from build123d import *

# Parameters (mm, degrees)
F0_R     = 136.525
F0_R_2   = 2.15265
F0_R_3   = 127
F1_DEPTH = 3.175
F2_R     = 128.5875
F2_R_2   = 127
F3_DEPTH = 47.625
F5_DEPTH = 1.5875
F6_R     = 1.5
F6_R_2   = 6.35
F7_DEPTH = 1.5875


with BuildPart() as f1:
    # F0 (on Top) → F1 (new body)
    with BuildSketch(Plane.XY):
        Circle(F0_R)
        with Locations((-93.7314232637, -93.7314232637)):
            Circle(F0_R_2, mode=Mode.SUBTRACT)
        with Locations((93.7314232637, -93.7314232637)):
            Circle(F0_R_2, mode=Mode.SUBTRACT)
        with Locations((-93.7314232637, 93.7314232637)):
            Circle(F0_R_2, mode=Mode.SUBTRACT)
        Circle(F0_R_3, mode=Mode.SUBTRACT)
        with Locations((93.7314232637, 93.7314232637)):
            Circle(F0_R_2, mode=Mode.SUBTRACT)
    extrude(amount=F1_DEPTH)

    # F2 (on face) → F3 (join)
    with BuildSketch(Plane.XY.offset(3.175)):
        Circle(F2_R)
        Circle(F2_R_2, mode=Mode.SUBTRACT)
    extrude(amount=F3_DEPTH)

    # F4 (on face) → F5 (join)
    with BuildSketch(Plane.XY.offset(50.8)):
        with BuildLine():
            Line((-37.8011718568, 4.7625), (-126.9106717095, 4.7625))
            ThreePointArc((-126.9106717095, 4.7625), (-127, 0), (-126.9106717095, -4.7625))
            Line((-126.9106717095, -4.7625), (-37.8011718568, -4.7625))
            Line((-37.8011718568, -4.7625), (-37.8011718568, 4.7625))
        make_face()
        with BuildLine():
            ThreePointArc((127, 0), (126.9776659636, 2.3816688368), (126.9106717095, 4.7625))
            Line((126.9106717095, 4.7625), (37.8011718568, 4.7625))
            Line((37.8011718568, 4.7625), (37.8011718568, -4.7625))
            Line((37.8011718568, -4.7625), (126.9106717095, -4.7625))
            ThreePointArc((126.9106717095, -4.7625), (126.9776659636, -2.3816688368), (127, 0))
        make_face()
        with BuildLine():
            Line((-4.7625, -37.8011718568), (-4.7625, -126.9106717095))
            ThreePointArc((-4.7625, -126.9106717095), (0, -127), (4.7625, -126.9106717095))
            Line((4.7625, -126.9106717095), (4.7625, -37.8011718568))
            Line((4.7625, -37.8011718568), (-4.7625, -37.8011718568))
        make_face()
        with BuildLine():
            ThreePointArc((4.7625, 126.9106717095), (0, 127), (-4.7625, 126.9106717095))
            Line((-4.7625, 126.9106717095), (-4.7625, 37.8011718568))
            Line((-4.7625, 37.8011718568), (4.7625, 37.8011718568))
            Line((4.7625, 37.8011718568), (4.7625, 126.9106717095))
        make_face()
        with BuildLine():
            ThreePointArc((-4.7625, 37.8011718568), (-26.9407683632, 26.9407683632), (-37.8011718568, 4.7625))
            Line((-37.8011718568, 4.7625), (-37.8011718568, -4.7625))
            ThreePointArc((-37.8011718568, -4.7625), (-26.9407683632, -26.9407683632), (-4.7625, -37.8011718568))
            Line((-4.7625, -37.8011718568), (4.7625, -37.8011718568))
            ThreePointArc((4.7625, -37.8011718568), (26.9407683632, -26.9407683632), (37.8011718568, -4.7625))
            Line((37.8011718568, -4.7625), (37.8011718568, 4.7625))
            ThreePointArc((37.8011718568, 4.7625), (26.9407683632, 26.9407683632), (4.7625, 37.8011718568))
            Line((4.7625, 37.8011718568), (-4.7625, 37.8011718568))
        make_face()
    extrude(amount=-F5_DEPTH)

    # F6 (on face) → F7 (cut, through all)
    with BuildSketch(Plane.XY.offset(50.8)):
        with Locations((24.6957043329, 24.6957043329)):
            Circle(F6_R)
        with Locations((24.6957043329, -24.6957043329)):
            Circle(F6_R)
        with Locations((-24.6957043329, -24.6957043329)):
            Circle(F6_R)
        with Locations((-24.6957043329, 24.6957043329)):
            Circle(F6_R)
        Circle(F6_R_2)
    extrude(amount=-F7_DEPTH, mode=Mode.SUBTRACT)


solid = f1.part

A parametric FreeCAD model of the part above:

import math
import FreeCAD as App
import Part
import Sketcher
Q = App.Units.Quantity

doc = App.newDocument("Part")
body = doc.addObject("PartDesign::Body", "Body")

# Sketch on XY plane
sketch1 = body.newObject("Sketcher::SketchObject", "Sketch")
sketch1.AttachmentSupport = (doc.getObject("XY_Plane"), [""])
sketch1.MapMode = "FlatFace"
sketch1.addGeometry(Part.Circle(App.Vector(0, 0, 0), App.Vector(0, 0, 1), 136.525), False)
sketch1.addGeometry(Part.Circle(App.Vector(-93.731423, -93.731423, 0), App.Vector(0, 0, 1), 2.15265), False)
sketch1.addGeometry(Part.Circle(App.Vector(93.731423, -93.731423, 0), App.Vector(0, 0, 1), 2.15265), False)
sketch1.addGeometry(Part.Circle(App.Vector(-93.731423, 93.731423, 0), App.Vector(0, 0, 1), 2.15265), False)
sketch1.addGeometry(Part.Circle(App.Vector(0, 0, 0), App.Vector(0, 0, 1), 127), False)
sketch1.addGeometry(Part.Circle(App.Vector(93.731423, 93.731423, 0), App.Vector(0, 0, 1), 2.15265), False)
sketch1.addConstraint(Sketcher.Constraint("Coincident", 0, 3, -1, 1))
sketch1.addConstraint(Sketcher.Constraint("Coincident", 4, 3, -1, 1))
sketch1.addConstraint(Sketcher.Constraint("Equal", 1, 2))
sketch1.addConstraint(Sketcher.Constraint("Equal", 2, 3))
sketch1.addConstraint(Sketcher.Constraint("Equal", 3, 5))
sketch1.addConstraint(Sketcher.Constraint("Symmetric", 2, 3, 3, 3, -1, 1))
sketch1.addConstraint(Sketcher.Constraint("Symmetric", 1, 3, 5, 3, -1, 1))
sketch1.addConstraint(Sketcher.Constraint("Symmetric", 1, 3, 2, 3, -2))
sketch1.addConstraint(Sketcher.Constraint("Diameter", 4, Q("10 in")))
sketch1.addConstraint(Sketcher.Constraint("Diameter", 0, Q("10.75 in")))
sketch1.addConstraint(Sketcher.Constraint("Diameter", 1, Q("0.1695 in")))
sketch1.addConstraint(Sketcher.Constraint("DistanceX", 1, 3, -1, 1, Q("93.731423 mm")))
sketch1.addConstraint(Sketcher.Constraint("DistanceY", 1, 3, -1, 1, Q("93.731423 mm")))
pad1 = body.newObject("PartDesign::Pad", "Pad")
pad1.Profile = sketch1
pad1.Length = Q("0.125 in")

# Sketch on XY plane
sketch2 = body.newObject("Sketcher::SketchObject", "Sketch001")
sketch2.AttachmentSupport = (doc.getObject("XY_Plane"), [""])
sketch2.MapMode = "FlatFace"
sketch2.AttachmentOffset = App.Placement(App.Vector(0, 0, 0.125 * 25.4), App.Rotation())
sketch2.addGeometry(Part.Circle(App.Vector(0, 0, 0), App.Vector(0, 0, 1), 128.5875), False)
sketch2.addGeometry(Part.Circle(App.Vector(0, 0, 0), App.Vector(0, 0, 1), 127), False)
sketch2.addConstraint(Sketcher.Constraint("Coincident", 0, 3, -1, 1))
sketch2.addConstraint(Sketcher.Constraint("Coincident", 1, 3, -1, 1))
sketch2.addConstraint(Sketcher.Constraint("Diameter", 1, Q("10 in")))
sketch2.addConstraint(Sketcher.Constraint("Diameter", 0, Q("10.125 in")))
pad2 = body.newObject("PartDesign::Pad", "Pad001")
pad2.Profile = sketch2
pad2.Length = Q("1.875 in")

# Sketch on XY plane
sketch3 = body.newObject("Sketcher::SketchObject", "Sketch002")
sketch3.AttachmentSupport = (doc.getObject("XY_Plane"), [""])
sketch3.MapMode = "FlatFace"
sketch3.AttachmentOffset = App.Placement(App.Vector(0, 0, 2 * 25.4), App.Rotation())
sketch3.addGeometry(Part.LineSegment(App.Vector(-37.801172, 4.7625, 0), App.Vector(-126.910672, 4.7625, 0)), False)
sketch3.addGeometry(Part.ArcOfCircle(Part.Circle(App.Vector(0, 0, 0), App.Vector(0, 0, 1), 127), math.radians(177.850904), math.radians(182.149096)), False)
sketch3.addGeometry(Part.LineSegment(App.Vector(-126.910672, -4.7625, 0), App.Vector(-37.801172, -4.7625, 0)), False)
sketch3.addGeometry(Part.ArcOfCircle(Part.Circle(App.Vector(0, 0, 0), App.Vector(0, 0, 1), 38.1), math.radians(-172.819244), math.radians(-97.180756)), False)
sketch3.addGeometry(Part.LineSegment(App.Vector(-4.7625, -37.801172, 0), App.Vector(-4.7625, -126.910672, 0)), False)
sketch3.addGeometry(Part.ArcOfCircle(Part.Circle(App.Vector(0, 0, 0), App.Vector(0, 0, 1), 127), math.radians(-92.149096), math.radians(-87.850904)), False)
sketch3.addGeometry(Part.LineSegment(App.Vector(4.7625, -126.910672, 0), App.Vector(4.7625, -37.801172, 0)), False)
sketch3.addGeometry(Part.ArcOfCircle(Part.Circle(App.Vector(0, 0, 0), App.Vector(0, 0, 1), 38.1), math.radians(-82.819244), math.radians(-7.180756)), False)
sketch3.addGeometry(Part.LineSegment(App.Vector(37.801172, -4.7625, 0), App.Vector(126.910672, -4.7625, 0)), False)
sketch3.addGeometry(Part.ArcOfCircle(Part.Circle(App.Vector(0, 0, 0), App.Vector(0, 0, 1), 127), math.radians(-2.149096), math.radians(0)), False)
sketch3.addGeometry(Part.ArcOfCircle(Part.Circle(App.Vector(0, 0, 0), App.Vector(0, 0, 1), 127), math.radians(0), math.radians(2.149096)), False)
sketch3.addGeometry(Part.LineSegment(App.Vector(126.910672, 4.7625, 0), App.Vector(37.801172, 4.7625, 0)), False)
sketch3.addGeometry(Part.ArcOfCircle(Part.Circle(App.Vector(0, 0, 0), App.Vector(0, 0, 1), 38.1), math.radians(7.180756), math.radians(82.819244)), False)
sketch3.addGeometry(Part.LineSegment(App.Vector(4.7625, 37.801172, 0), App.Vector(4.7625, 126.910672, 0)), False)
sketch3.addGeometry(Part.ArcOfCircle(Part.Circle(App.Vector(0, 0, 0), App.Vector(0, 0, 1), 127), math.radians(87.850904), math.radians(92.149096)), False)
sketch3.addGeometry(Part.LineSegment(App.Vector(-4.7625, 126.910672, 0), App.Vector(-4.7625, 37.801172, 0)), False)
sketch3.addGeometry(Part.ArcOfCircle(Part.Circle(App.Vector(0, 0, 0), App.Vector(0, 0, 1), 38.1), math.radians(97.180756), math.radians(172.819244)), False)
sketch3.addConstraint(Sketcher.Constraint("Coincident", 0, 2, 1, 1))
sketch3.addConstraint(Sketcher.Constraint("Coincident", 1, 2, 2, 1))
sketch3.addConstraint(Sketcher.Constraint("Coincident", 2, 2, 3, 1))
sketch3.addConstraint(Sketcher.Constraint("Coincident", 3, 2, 4, 1))
sketch3.addConstraint(Sketcher.Constraint("Coincident", 4, 2, 5, 1))
sketch3.addConstraint(Sketcher.Constraint("Coincident", 5, 2, 6, 1))
sketch3.addConstraint(Sketcher.Constraint("Coincident", 6, 2, 7, 1))
sketch3.addConstraint(Sketcher.Constraint("Coincident", 7, 2, 8, 1))
sketch3.addConstraint(Sketcher.Constraint("Coincident", 8, 2, 9, 1))
sketch3.addConstraint(Sketcher.Constraint("Tangent", 9, 2, 10, 1))
sketch3.addConstraint(Sketcher.Constraint("Coincident", 10, 2, 11, 1))
sketch3.addConstraint(Sketcher.Constraint("Coincident", 11, 2, 12, 1))
sketch3.addConstraint(Sketcher.Constraint("Coincident", 12, 2, 13, 1))
sketch3.addConstraint(Sketcher.Constraint("Coincident", 13, 2, 14, 1))
sketch3.addConstraint(Sketcher.Constraint("Coincident", 14, 2, 15, 1))
sketch3.addConstraint(Sketcher.Constraint("Coincident", 15, 2, 16, 1))
sketch3.addConstraint(Sketcher.Constraint("Coincident", 16, 2, 0, 1))
sketch3.addConstraint(Sketcher.Constraint("Horizontal", 0))
sketch3.addConstraint(Sketcher.Constraint("Horizontal", 2))
sketch3.addConstraint(Sketcher.Constraint("Vertical", 4))
sketch3.addConstraint(Sketcher.Constraint("Vertical", 6))
sketch3.addConstraint(Sketcher.Constraint("Horizontal", 8))
sketch3.addConstraint(Sketcher.Constraint("Horizontal", 11))
sketch3.addConstraint(Sketcher.Constraint("Vertical", 13))
sketch3.addConstraint(Sketcher.Constraint("Vertical", 15))
sketch3.addConstraint(Sketcher.Constraint("Coincident", 1, 3, -1, 1))
sketch3.addConstraint(Sketcher.Constraint("Coincident", 3, 3, -1, 1))
sketch3.addConstraint(Sketcher.Constraint("Coincident", 5, 3, -1, 1))
sketch3.addConstraint(Sketcher.Constraint("Coincident", 7, 3, -1, 1))
sketch3.addConstraint(Sketcher.Constraint("Coincident", 9, 3, -1, 1))
sketch3.addConstraint(Sketcher.Constraint("Coincident", 12, 3, -1, 1))
sketch3.addConstraint(Sketcher.Constraint("Coincident", 14, 3, -1, 1))
sketch3.addConstraint(Sketcher.Constraint("Coincident", 16, 3, -1, 1))
sketch3.addConstraint(Sketcher.Constraint("Equal", 1, 5))
sketch3.addConstraint(Sketcher.Constraint("Equal", 3, 7))
sketch3.addConstraint(Sketcher.Constraint("Equal", 5, 9))
sketch3.addConstraint(Sketcher.Constraint("Equal", 9, 10))
sketch3.addConstraint(Sketcher.Constraint("Equal", 7, 12))
sketch3.addConstraint(Sketcher.Constraint("Equal", 10, 14))
sketch3.addConstraint(Sketcher.Constraint("Equal", 12, 16))
sketch3.addConstraint(Sketcher.Constraint("PointOnObject", 9, 2, -1))
sketch3.addConstraint(Sketcher.Constraint("Horizontal", 4, 2, 5, 2))
sketch3.addConstraint(Sketcher.Constraint("Horizontal", 2, 2, 7, 2))
sketch3.addConstraint(Sketcher.Constraint("Horizontal", 0, 2, 10, 2))
sketch3.addConstraint(Sketcher.Constraint("Horizontal", 13, 2, 14, 2))
sketch3.addConstraint(Sketcher.Constraint("Vertical", 0, 2, 1, 2))
sketch3.addConstraint(Sketcher.Constraint("Vertical", 6, 2, 12, 2))
sketch3.addConstraint(Sketcher.Constraint("Equal", 11, 4))
sketch3.addConstraint(Sketcher.Constraint("Radius", 1, Q("5 in")))
sketch3.addConstraint(Sketcher.Constraint("Radius", 3, Q("1.5 in")))
sketch3.addConstraint(Sketcher.Constraint("DistanceY", -1, 1, 0, 2, Q("0.1875 in")))
pad3 = body.newObject("PartDesign::Pad", "Pad002")
pad3.Profile = sketch3
pad3.Length = Q("0.0625 in")
pad3.Reversed = True

# Sketch on XY plane
sketch4 = body.newObject("Sketcher::SketchObject", "Sketch003")
sketch4.AttachmentSupport = (doc.getObject("XY_Plane"), [""])
sketch4.MapMode = "FlatFace"
sketch4.AttachmentOffset = App.Placement(App.Vector(0, 0, 2 * 25.4), App.Rotation())
sketch4.addGeometry(Part.Circle(App.Vector(24.695704, 24.695704, 0), App.Vector(0, 0, 1), 1.5), False)
sketch4.addGeometry(Part.Circle(App.Vector(24.695704, -24.695704, 0), App.Vector(0, 0, 1), 1.5), False)
sketch4.addGeometry(Part.Circle(App.Vector(-24.695704, -24.695704, 0), App.Vector(0, 0, 1), 1.5), False)
sketch4.addGeometry(Part.Circle(App.Vector(-24.695704, 24.695704, 0), App.Vector(0, 0, 1), 1.5), False)
sketch4.addGeometry(Part.Circle(App.Vector(0, 0, 0), App.Vector(0, 0, 1), 6.35), False)
sketch4.addConstraint(Sketcher.Constraint("Coincident", 4, 3, -1, 1))
sketch4.addConstraint(Sketcher.Constraint("Equal", 0, 1))
sketch4.addConstraint(Sketcher.Constraint("Equal", 1, 2))
sketch4.addConstraint(Sketcher.Constraint("Equal", 2, 3))
sketch4.addConstraint(Sketcher.Constraint("Symmetric", 0, 3, 2, 3, -1, 1))
sketch4.addConstraint(Sketcher.Constraint("Symmetric", 1, 3, 3, 3, -1, 1))
sketch4.addConstraint(Sketcher.Constraint("Symmetric", 1, 3, 2, 3, -2))
sketch4.addConstraint(Sketcher.Constraint("Diameter", 4, Q("0.5 in")))
sketch4.addConstraint(Sketcher.Constraint("Diameter", 0, Q("3 mm")))
sketch4.addConstraint(Sketcher.Constraint("DistanceY", 1, 3, 0, 3, Q("49.391409 mm")))
sketch4.addConstraint(Sketcher.Constraint("DistanceX", 2, 3, 1, 3, Q("49.391409 mm")))
pocket1 = body.newObject("PartDesign::Pocket", "Pocket")
pocket1.Profile = sketch4
pocket1.Type = "ThroughAll"

doc.recompute()
